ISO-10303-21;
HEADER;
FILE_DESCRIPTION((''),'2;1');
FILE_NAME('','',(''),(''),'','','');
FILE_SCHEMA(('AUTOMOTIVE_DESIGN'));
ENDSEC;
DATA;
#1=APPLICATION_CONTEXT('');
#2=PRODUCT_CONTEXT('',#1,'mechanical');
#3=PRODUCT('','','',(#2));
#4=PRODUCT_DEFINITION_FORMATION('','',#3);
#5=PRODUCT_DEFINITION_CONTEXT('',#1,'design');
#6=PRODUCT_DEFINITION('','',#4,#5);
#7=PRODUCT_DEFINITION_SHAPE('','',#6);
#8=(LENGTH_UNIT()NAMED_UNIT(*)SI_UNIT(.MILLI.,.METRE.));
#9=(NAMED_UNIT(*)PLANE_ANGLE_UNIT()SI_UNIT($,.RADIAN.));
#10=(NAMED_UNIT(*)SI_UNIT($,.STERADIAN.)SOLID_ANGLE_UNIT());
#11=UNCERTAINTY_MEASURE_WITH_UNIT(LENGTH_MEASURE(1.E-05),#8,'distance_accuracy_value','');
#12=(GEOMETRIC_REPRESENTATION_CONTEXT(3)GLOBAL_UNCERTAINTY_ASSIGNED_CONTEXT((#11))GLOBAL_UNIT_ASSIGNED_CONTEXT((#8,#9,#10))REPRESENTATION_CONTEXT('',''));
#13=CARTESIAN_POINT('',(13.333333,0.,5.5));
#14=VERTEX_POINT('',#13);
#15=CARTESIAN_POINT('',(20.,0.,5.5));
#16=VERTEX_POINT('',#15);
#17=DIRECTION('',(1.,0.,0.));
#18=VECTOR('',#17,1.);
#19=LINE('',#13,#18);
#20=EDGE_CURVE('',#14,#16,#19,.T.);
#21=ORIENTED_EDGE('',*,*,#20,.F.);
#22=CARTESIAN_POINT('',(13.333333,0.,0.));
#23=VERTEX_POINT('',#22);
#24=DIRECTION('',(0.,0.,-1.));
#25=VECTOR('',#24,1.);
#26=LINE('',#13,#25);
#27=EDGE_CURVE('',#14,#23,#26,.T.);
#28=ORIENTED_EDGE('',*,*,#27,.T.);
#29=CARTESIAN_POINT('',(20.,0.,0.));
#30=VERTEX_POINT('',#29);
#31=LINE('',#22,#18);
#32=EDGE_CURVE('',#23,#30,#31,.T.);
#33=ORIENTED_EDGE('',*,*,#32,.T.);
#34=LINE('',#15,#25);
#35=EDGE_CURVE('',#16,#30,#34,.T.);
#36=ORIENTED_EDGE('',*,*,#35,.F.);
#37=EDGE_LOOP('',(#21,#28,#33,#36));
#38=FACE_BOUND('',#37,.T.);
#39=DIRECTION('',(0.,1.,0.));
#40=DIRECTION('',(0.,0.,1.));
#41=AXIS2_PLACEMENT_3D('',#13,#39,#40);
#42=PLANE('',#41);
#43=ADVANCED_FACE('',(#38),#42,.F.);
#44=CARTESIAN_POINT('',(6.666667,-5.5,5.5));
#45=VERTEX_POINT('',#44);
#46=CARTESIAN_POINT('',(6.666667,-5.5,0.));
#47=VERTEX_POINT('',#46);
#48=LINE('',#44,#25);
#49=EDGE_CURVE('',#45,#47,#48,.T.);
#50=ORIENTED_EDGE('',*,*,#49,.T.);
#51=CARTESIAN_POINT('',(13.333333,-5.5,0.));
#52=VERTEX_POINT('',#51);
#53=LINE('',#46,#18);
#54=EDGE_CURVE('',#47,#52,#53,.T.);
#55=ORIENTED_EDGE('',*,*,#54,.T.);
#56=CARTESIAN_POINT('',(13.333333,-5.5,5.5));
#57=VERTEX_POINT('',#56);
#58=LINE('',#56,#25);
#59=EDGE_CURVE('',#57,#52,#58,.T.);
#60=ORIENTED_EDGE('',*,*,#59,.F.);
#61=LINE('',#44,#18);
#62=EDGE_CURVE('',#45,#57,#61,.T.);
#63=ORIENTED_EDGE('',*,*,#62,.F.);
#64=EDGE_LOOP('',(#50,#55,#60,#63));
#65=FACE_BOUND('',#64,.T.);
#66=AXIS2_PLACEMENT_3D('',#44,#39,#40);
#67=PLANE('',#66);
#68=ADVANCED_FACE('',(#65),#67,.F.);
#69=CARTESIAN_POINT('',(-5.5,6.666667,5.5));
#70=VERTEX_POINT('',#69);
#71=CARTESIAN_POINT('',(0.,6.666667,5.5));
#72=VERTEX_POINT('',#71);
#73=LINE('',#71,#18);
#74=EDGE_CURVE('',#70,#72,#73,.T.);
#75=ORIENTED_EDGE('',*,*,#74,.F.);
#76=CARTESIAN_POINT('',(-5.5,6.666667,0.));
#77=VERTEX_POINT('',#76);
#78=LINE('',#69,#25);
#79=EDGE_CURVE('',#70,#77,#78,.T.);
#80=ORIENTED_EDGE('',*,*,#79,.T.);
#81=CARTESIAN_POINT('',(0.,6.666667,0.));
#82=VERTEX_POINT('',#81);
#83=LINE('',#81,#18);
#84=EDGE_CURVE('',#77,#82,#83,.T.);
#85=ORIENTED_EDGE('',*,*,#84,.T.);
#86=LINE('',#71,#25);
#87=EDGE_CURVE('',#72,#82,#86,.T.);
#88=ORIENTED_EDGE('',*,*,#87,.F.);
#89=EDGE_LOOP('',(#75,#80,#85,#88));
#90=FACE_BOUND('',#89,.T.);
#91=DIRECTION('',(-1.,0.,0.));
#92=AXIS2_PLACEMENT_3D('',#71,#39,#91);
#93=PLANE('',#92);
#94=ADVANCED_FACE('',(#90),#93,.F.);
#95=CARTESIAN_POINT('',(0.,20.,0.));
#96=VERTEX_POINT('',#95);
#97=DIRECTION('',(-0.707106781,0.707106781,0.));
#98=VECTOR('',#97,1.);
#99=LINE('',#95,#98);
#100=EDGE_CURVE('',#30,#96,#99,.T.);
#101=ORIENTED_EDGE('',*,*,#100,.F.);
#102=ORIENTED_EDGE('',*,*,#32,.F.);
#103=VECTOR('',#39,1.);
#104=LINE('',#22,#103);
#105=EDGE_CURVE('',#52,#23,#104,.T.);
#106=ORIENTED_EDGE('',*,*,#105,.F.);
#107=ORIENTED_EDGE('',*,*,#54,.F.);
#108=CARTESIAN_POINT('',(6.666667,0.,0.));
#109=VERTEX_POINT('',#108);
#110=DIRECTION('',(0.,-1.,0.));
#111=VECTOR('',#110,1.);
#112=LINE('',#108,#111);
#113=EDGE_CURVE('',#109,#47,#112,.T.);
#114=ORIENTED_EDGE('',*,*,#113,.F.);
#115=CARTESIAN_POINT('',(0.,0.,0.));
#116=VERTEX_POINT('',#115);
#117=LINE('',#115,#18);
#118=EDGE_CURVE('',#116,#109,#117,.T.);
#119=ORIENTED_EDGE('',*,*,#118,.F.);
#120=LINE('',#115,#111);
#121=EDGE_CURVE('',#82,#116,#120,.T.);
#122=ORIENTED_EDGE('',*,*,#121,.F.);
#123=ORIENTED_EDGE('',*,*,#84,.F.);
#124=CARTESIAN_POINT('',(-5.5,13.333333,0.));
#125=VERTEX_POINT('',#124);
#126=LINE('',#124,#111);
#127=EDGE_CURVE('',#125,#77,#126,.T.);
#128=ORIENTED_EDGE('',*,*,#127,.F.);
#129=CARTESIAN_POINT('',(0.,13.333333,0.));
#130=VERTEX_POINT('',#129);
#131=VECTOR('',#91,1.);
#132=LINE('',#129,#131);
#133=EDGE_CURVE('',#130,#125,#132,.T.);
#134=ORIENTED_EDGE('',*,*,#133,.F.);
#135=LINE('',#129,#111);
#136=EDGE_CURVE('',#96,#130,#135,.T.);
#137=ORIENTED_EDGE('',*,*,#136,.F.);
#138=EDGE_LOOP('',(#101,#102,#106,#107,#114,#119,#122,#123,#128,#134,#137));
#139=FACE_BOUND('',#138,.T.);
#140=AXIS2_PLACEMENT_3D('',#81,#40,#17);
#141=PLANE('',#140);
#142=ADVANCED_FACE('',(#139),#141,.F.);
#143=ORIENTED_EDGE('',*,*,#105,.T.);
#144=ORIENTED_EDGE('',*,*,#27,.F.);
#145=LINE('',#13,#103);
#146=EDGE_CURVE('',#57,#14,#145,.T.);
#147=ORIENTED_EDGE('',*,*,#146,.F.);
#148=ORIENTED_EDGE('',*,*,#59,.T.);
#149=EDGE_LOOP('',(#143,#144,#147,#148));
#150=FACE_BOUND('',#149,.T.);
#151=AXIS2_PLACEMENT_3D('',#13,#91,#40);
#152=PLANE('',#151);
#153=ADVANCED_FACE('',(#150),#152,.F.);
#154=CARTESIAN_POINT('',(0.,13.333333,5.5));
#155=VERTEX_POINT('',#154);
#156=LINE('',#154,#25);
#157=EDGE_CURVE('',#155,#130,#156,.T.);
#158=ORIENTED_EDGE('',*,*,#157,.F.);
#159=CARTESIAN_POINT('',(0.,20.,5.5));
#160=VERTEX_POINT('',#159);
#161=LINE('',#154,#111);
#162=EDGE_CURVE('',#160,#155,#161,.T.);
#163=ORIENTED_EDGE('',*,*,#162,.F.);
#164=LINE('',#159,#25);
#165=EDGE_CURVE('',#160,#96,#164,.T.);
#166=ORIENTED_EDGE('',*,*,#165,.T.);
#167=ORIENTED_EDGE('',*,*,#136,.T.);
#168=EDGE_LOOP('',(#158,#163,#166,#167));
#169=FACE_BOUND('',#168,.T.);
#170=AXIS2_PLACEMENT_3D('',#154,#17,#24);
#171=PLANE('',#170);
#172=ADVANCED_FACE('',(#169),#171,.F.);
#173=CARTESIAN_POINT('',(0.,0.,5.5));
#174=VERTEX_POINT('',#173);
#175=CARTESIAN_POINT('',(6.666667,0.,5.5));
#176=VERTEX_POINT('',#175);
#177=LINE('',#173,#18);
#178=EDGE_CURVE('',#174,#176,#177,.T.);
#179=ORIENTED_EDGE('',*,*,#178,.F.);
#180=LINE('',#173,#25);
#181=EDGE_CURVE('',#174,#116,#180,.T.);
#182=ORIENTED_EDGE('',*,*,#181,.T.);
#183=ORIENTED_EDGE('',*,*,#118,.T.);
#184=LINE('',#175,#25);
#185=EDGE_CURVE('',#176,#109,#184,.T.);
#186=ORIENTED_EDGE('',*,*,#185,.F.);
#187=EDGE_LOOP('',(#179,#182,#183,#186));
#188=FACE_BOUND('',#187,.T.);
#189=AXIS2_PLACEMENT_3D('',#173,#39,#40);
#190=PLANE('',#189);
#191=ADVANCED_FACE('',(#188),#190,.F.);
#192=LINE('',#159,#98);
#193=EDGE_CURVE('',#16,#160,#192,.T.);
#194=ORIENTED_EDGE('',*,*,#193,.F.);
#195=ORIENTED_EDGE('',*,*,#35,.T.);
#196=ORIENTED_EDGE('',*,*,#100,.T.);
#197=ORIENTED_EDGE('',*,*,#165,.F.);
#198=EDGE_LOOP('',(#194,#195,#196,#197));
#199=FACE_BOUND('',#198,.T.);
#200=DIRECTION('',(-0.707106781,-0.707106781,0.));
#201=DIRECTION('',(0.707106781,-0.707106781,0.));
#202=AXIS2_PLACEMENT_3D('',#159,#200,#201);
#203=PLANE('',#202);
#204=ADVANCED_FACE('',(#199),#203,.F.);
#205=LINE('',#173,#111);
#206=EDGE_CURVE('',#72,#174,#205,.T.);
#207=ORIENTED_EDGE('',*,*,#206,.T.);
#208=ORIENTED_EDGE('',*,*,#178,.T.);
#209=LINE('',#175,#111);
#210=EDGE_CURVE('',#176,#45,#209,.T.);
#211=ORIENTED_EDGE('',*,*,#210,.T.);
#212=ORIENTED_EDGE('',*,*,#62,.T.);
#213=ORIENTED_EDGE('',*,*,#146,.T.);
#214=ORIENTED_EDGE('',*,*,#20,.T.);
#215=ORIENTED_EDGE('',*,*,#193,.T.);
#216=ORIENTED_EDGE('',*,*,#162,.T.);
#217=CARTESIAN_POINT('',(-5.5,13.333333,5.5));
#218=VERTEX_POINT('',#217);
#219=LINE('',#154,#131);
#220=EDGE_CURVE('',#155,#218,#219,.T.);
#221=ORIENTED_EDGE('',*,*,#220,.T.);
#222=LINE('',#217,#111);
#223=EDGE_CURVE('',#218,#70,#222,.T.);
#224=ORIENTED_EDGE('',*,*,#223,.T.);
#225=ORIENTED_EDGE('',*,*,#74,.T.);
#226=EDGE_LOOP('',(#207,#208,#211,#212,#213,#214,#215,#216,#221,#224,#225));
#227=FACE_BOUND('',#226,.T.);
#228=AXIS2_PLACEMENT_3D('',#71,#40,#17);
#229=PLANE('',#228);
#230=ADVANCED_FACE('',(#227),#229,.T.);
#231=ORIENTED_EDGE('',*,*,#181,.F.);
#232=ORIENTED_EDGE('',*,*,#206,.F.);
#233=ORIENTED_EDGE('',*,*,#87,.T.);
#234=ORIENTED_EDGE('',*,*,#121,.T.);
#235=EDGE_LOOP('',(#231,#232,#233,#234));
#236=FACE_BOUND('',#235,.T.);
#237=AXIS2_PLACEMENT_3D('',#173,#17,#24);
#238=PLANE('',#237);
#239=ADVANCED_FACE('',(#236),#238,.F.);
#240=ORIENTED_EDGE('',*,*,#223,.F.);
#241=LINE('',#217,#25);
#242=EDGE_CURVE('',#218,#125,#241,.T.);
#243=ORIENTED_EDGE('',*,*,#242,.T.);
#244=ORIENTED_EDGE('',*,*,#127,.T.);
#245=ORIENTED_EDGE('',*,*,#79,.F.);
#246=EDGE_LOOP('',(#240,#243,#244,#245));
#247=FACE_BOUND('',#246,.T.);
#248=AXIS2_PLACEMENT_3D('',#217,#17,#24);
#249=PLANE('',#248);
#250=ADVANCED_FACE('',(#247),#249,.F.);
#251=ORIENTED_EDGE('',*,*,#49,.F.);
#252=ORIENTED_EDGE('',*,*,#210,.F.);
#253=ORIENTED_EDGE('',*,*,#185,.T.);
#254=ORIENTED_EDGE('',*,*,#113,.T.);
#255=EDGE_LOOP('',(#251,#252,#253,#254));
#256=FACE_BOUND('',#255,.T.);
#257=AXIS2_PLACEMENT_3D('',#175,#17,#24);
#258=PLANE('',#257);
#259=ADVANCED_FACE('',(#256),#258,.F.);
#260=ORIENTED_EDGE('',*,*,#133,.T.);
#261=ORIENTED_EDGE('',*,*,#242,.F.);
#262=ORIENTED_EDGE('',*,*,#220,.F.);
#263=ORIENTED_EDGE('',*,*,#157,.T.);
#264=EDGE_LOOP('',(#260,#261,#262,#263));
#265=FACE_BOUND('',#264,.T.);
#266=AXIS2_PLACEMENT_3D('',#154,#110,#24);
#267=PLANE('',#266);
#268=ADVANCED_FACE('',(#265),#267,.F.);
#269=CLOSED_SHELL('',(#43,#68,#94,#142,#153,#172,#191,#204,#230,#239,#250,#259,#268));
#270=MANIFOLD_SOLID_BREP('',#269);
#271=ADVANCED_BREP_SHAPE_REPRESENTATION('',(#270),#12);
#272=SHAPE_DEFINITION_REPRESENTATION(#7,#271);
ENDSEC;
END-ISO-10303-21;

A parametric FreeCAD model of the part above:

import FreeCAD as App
import Part
import Sketcher
from FreeCAD import Vector
Q = App.Units.Quantity

doc = App.newDocument("Part")
body = doc.addObject("PartDesign::Body", "Body")

sketch1 = doc.addObject("Sketcher::SketchObject", "Sketch")
body.addObject(sketch1)
sketch1.AttachmentSupport = (doc.XY_Plane, [""])
sketch1.MapMode = "FlatFace"
sketch1.addGeometry(Part.LineSegment(Vector(20, 0, 0), Vector(0, 20, 0)), False)
sketch1.addGeometry(Part.LineSegment(Vector(0, 20, 0), Vector(0, 13, 0)), False)
sketch1.addGeometry(Part.LineSegment(Vector(0, 13, 0), Vector(-6, 13, 0)), False)
sketch1.addGeometry(Part.LineSegment(Vector(-6, 13, 0), Vector(-6, 7, 0)), False)
sketch1.addGeometry(Part.LineSegment(Vector(-6, 7, 0), Vector(0, 7, 0)), False)
sketch1.addGeometry(Part.LineSegment(Vector(0, 7, 0), Vector(0, 0, 0)), False)
sketch1.addGeometry(Part.LineSegment(Vector(0, 0, 0), Vector(7, 0, 0)), False)
sketch1.addGeometry(Part.LineSegment(Vector(7, 0, 0), Vector(7, -6, 0)), False)
sketch1.addGeometry(Part.LineSegment(Vector(7, -6, 0), Vector(13, -6, 0)), False)
sketch1.addGeometry(Part.LineSegment(Vector(13, -6, 0), Vector(13, 0, 0)), False)
sketch1.addGeometry(Part.LineSegment(Vector(13, 0, 0), Vector(20, 0, 0)), False)
sketch1.addConstraint(Sketcher.Constraint("Coincident", 0, 2, 1, 1))
sketch1.addConstraint(Sketcher.Constraint("Coincident", 1, 2, 2, 1))
sketch1.addConstraint(Sketcher.Constraint("Coincident", 2, 2, 3, 1))
sketch1.addConstraint(Sketcher.Constraint("Coincident", 3, 2, 4, 1))
sketch1.addConstraint(Sketcher.Constraint("Coincident", 4, 2, 5, 1))
sketch1.addConstraint(Sketcher.Constraint("Coincident", 5, 2, 6, 1))
sketch1.addConstraint(Sketcher.Constraint("Coincident", 6, 2, 7, 1))
sketch1.addConstraint(Sketcher.Constraint("Coincident", 7, 2, 8, 1))
sketch1.addConstraint(Sketcher.Constraint("Coincident", 8, 2, 9, 1))
sketch1.addConstraint(Sketcher.Constraint("Coincident", 9, 2, 10, 1))
sketch1.addConstraint(Sketcher.Constraint("Coincident", 10, 2, 0, 1))
sketch1.addConstraint(Sketcher.Constraint("Vertical", 1))
sketch1.addConstraint(Sketcher.Constraint("Horizontal", 2))
sketch1.addConstraint(Sketcher.Constraint("Vertical", 3))
sketch1.addConstraint(Sketcher.Constraint("Horizontal", 4))
sketch1.addConstraint(Sketcher.Constraint("Vertical", 5))
sketch1.addConstraint(Sketcher.Constraint("Horizontal", 6))
sketch1.addConstraint(Sketcher.Constraint("Vertical", 7))
sketch1.addConstraint(Sketcher.Constraint("Horizontal", 8))
sketch1.addConstraint(Sketcher.Constraint("Vertical", 9))
sketch1.addConstraint(Sketcher.Constraint("Horizontal", 10))
sketch1.addConstraint(Sketcher.Constraint("Coincident", 5, 2, -1, 1))
sketch1.addConstraint(Sketcher.Constraint("PointOnObject", 0, 2, -2))
sketch1.addConstraint(Sketcher.Constraint("PointOnObject", 9, 2, -1))
sketch1.addConstraint(Sketcher.Constraint("Equal", 6, 8))
sketch1.addConstraint(Sketcher.Constraint("Equal", 8, 10))
sketch1.addConstraint(Sketcher.Constraint("Equal", 10, 1))
sketch1.addConstraint(Sketcher.Constraint("Equal", 1, 3))
sketch1.addConstraint(Sketcher.Constraint("Equal", 3, 5))
sketch1.addConstraint(Sketcher.Constraint("Equal", 4, 7))
sketch1.addConstraint(Sketcher.Constraint("DistanceX", 2, 2, 2, 1, Q("5.5 mm")))
sketch1.addConstraint(Sketcher.Constraint("DistanceY", -1, 1, 0, 2, Q("20 mm")))
pad1 = doc.addObject("PartDesign::Pad", "Pad")
body.addObject(pad1)
pad1.Profile = sketch1
pad1.Length = 5.5

doc.recompute()
